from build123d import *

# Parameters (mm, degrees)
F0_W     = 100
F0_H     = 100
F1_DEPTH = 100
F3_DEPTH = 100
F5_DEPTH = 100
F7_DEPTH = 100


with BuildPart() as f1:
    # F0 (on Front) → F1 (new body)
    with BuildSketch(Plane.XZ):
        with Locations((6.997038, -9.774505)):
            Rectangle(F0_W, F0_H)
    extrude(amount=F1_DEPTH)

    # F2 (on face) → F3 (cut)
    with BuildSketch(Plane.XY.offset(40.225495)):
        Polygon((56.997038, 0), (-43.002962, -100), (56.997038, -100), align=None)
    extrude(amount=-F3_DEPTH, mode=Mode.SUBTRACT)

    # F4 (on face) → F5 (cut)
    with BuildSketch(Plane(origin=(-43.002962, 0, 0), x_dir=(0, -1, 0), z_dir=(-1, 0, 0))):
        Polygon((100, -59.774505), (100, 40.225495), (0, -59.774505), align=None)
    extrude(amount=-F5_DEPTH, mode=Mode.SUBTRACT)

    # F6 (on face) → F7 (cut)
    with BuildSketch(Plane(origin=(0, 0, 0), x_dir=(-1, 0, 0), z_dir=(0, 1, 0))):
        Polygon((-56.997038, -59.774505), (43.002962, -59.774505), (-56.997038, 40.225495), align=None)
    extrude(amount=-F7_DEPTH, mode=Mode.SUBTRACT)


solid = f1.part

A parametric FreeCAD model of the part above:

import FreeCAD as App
import Part
import Sketcher
Q = App.Units.Quantity

doc = App.newDocument("Part")
body = doc.addObject("PartDesign::Body", "Body")

# Sketch on XZ plane
sketch1 = body.newObject("Sketcher::SketchObject", "Sketch")
sketch1.AttachmentSupport = (doc.getObject("XZ_Plane"), [""])
sketch1.MapMode = "FlatFace"
sketch1.addGeometry(Part.LineSegment(App.Vector(-43, 40, 0), App.Vector(-43, -60, 0)), False)
sketch1.addGeometry(Part.LineSegment(App.Vector(-43, -60, 0), App.Vector(57, -60, 0)), False)
sketch1.addGeometry(Part.LineSegment(App.Vector(57, -60, 0), App.Vector(57, 40, 0)), False)
sketch1.addGeometry(Part.LineSegment(App.Vector(57, 40, 0), App.Vector(-43, 40, 0)), False)
sketch1.addConstraint(Sketcher.Constraint("Coincident", 0, 2, 1, 1))
sketch1.addConstraint(Sketcher.Constraint("Coincident", 1, 2, 2, 1))
sketch1.addConstraint(Sketcher.Constraint("Coincident", 2, 2, 3, 1))
sketch1.addConstraint(Sketcher.Constraint("Coincident", 3, 2, 0, 1))
sketch1.addConstraint(Sketcher.Constraint("Vertical", 0))
sketch1.addConstraint(Sketcher.Constraint("Horizontal", 1))
sketch1.addConstraint(Sketcher.Constraint("Vertical", 2))
sketch1.addConstraint(Sketcher.Constraint("Horizontal", 3))
sketch1.addConstraint(Sketcher.Constraint("Equal", 3, 0))
sketch1.addConstraint(Sketcher.Constraint("DistanceX", 1, 1, 1, 2, Q("100 mm")))
sketch1.addConstraint(Sketcher.Constraint("DistanceX", 0, 2, -1, 1, Q("43.002962 mm")))
sketch1.addConstraint(Sketcher.Constraint("DistanceY", 0, 2, -1, 1, Q("59.774505 mm")))
pad1 = body.newObject("PartDesign::Pad", "Pad")
pad1.Profile = sketch1
pad1.Length = 100

# Sketch on XY plane
sketch2 = body.newObject("Sketcher::SketchObject", "Sketch001")
sketch2.AttachmentSupport = (doc.getObject("XY_Plane"), [""])
sketch2.MapMode = "FlatFace"
sketch2.AttachmentOffset = App.Placement(App.Vector(0, 0, 40.225495), App.Rotation())
sketch2.addGeometry(Part.LineSegment(App.Vector(57, 0, 0), App.Vector(-43, -100, 0)), False)
sketch2.addGeometry(Part.LineSegment(App.Vector(-43, -100, 0), App.Vector(57, -100, 0)), False)
sketch2.addGeometry(Part.LineSegment(App.Vector(57, -100, 0), App.Vector(57, 0, 0)), False)
sketch2.addConstraint(Sketcher.Constraint("Coincident", 0, 2, 1, 1))
sketch2.addConstraint(Sketcher.Constraint("Coincident", 1, 2, 2, 1))
sketch2.addConstraint(Sketcher.Constraint("Coincident", 2, 2, 0, 1))
sketch2.addConstraint(Sketcher.Constraint("Horizontal", 1))
sketch2.addConstraint(Sketcher.Constraint("Vertical", 2))
sketch2.addConstraint(Sketcher.Constraint("PointOnObject", 2, 2, -1))
sketch2.addConstraint(Sketcher.Constraint("Equal", 1, 2))
sketch2.addConstraint(Sketcher.Constraint("DistanceX", 1, 1, 1, 2, Q("100 mm")))
sketch2.addConstraint(Sketcher.Constraint("DistanceX", 0, 2, -1, 1, Q("43.002962 mm")))
pocket1 = body.newObject("PartDesign::Pocket", "Pocket")
pocket1.Profile = sketch2
pocket1.Length = 100

# Sketch on YZ plane
sketch3 = body.newObject("Sketcher::SketchObject", "Sketch002")
sketch3.AttachmentSupport = (doc.getObject("YZ_Plane"), [""])
sketch3.MapMode = "FlatFace"
sketch3.AttachmentOffset = App.Placement(App.Vector(0, 0, -43.002962), App.Rotation())
sketch3.addGeometry(Part.LineSegment(App.Vector(-100, -60, 0), App.Vector(-100, 40, 0)), False)
sketch3.addGeometry(Part.LineSegment(App.Vector(-100, 40, 0), App.Vector(0, -60, 0)), False)
sketch3.addGeometry(Part.LineSegment(App.Vector(0, -60, 0), App.Vector(-100, -60, 0)), False)
sketch3.addConstraint(Sketcher.Constraint("Coincident", 0, 2, 1, 1))
sketch3.addConstraint(Sketcher.Constraint("Coincident", 1, 2, 2, 1))
sketch3.addConstraint(Sketcher.Constraint("Coincident", 2, 2, 0, 1))
sketch3.addConstraint(Sketcher.Constraint("Vertical", 0))
sketch3.addConstraint(Sketcher.Constraint("Horizontal", 2))
sketch3.addConstraint(Sketcher.Constraint("PointOnObject", 1, 2, -2))
sketch3.addConstraint(Sketcher.Constraint("Equal", 2, 0))
sketch3.addConstraint(Sketcher.Constraint("DistanceX", 2, 2, 2, 1, Q("100 mm")))
sketch3.addConstraint(Sketcher.Constraint("DistanceY", -1, 1, 0, 2, Q("40.225495 mm")))
pocket2 = body.newObject("PartDesign::Pocket", "Pocket001")
pocket2.Profile = sketch3
pocket2.Length = 100
pocket2.Reversed = True

# Sketch on XZ plane
sketch4 = body.newObject("Sketcher::SketchObject", "Sketch003")
sketch4.AttachmentSupport = (doc.getObject("XZ_Plane"), [""])
sketch4.MapMode = "FlatFace"
sketch4.addGeometry(Part.LineSegment(App.Vector(57, -60, 0), App.Vector(-43, -60, 0)), False)
sketch4.addGeometry(Part.LineSegment(App.Vector(-43, -60, 0), App.Vector(57, 40, 0)), False)
sketch4.addGeometry(Part.LineSegment(App.Vector(57, 40, 0), App.Vector(57, -60, 0)), False)
sketch4.addConstraint(Sketcher.Constraint("Coincident", 0, 2, 1, 1))
sketch4.addConstraint(Sketcher.Constraint("Coincident", 1, 2, 2, 1))
sketch4.addConstraint(Sketcher.Constraint("Coincident", 2, 2, 0, 1))
sketch4.addConstraint(Sketcher.Constraint("Horizontal", 0))
sketch4.addConstraint(Sketcher.Constraint("Vertical", 2))
sketch4.addConstraint(Sketcher.Constraint("Equal", 0, 2))
sketch4.addConstraint(Sketcher.Constraint("DistanceX", 0, 2, 0, 1, Q("100 mm")))
sketch4.addConstraint(Sketcher.Constraint("DistanceX", 0, 2, -1, 1, Q("43.002962 mm")))
sketch4.addConstraint(Sketcher.Constraint("DistanceY", 0, 2, -1, 1, Q("59.774505 mm")))
pocket3 = body.newObject("PartDesign::Pocket", "Pocket002")
pocket3.Profile = sketch4
pocket3.Length = 100
pocket3.Reversed = True

doc.recompute()
